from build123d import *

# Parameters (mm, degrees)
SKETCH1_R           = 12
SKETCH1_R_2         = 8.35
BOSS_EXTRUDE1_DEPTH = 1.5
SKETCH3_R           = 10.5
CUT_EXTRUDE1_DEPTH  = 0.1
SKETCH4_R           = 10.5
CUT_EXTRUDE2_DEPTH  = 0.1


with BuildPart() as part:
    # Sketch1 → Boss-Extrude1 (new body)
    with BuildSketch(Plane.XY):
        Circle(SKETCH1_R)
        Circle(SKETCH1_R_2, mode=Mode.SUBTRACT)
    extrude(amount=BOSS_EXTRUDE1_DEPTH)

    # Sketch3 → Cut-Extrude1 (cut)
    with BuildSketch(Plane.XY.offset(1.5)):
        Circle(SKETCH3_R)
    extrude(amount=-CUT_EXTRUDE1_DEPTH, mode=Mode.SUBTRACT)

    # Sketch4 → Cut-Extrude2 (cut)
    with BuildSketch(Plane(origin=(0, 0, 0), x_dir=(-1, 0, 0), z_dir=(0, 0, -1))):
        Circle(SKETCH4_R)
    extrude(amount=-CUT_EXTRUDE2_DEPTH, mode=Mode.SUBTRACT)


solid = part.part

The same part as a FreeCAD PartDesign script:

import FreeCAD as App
import Part
import Sketcher
from FreeCAD import Vector

doc = App.newDocument("Part")
body = doc.addObject("PartDesign::Body", "Body")

# Sketch on XY plane
sketch1 = body.newObject("Sketcher::SketchObject", "Sketch")
sketch1.AttachmentSupport = (doc.getObject("XY_Plane"), [""])
sketch1.MapMode = "FlatFace"
sketch1.addGeometry([
    Part.Circle(Vector(0, 0, 0), Vector(0, 0, 1), 12),
    Part.Circle(Vector(0, 0, 0), Vector(0, 0, 1), 8),
], False)
sketch1.addConstraint([
    Sketcher.Constraint("Coincident", 0, 3, -1, 1),
    Sketcher.Constraint("Coincident", 1, 3, -1, 1),
    Sketcher.Constraint("Diameter", 0, 24.0),
    Sketcher.Constraint("Diameter", 1, 16.7),
])
pad1 = body.newObject("PartDesign::Pad", "Pad")
pad1.Profile = sketch1
pad1.Length = 1.5

# Sketch on XY plane
sketch2 = body.newObject("Sketcher::SketchObject", "Sketch001")
sketch2.AttachmentSupport = (doc.getObject("XY_Plane"), [""])
sketch2.MapMode = "FlatFace"
sketch2.AttachmentOffset = App.Placement(Vector(0, 0, 1.5), App.Rotation())
sketch2.addGeometry(Part.Circle(Vector(0, 0, 0), Vector(0, 0, 1), 10), False)
sketch2.addConstraint([
    Sketcher.Constraint("Coincident", 0, 3, -1, 1),
    Sketcher.Constraint("Diameter", 0, 21.0),
])
pocket1 = body.newObject("PartDesign::Pocket", "Pocket")
pocket1.Profile = sketch2
pocket1.Length = 0.1

# Sketch on XY plane
sketch3 = body.newObject("Sketcher::SketchObject", "Sketch002")
sketch3.AttachmentSupport = (doc.getObject("XY_Plane"), [""])
sketch3.MapMode = "FlatFace"
sketch3.addGeometry(Part.Circle(Vector(0, 0, 0), Vector(0, 0, 1), 10), False)
sketch3.addConstraint([
    Sketcher.Constraint("Coincident", 0, 3, -1, 1),
    Sketcher.Constraint("Diameter", 0, 21.0),
])
pocket2 = body.newObject("PartDesign::Pocket", "Pocket001")
pocket2.Profile = sketch3
pocket2.Length = 0.1
pocket2.Reversed = True

doc.recompute()
